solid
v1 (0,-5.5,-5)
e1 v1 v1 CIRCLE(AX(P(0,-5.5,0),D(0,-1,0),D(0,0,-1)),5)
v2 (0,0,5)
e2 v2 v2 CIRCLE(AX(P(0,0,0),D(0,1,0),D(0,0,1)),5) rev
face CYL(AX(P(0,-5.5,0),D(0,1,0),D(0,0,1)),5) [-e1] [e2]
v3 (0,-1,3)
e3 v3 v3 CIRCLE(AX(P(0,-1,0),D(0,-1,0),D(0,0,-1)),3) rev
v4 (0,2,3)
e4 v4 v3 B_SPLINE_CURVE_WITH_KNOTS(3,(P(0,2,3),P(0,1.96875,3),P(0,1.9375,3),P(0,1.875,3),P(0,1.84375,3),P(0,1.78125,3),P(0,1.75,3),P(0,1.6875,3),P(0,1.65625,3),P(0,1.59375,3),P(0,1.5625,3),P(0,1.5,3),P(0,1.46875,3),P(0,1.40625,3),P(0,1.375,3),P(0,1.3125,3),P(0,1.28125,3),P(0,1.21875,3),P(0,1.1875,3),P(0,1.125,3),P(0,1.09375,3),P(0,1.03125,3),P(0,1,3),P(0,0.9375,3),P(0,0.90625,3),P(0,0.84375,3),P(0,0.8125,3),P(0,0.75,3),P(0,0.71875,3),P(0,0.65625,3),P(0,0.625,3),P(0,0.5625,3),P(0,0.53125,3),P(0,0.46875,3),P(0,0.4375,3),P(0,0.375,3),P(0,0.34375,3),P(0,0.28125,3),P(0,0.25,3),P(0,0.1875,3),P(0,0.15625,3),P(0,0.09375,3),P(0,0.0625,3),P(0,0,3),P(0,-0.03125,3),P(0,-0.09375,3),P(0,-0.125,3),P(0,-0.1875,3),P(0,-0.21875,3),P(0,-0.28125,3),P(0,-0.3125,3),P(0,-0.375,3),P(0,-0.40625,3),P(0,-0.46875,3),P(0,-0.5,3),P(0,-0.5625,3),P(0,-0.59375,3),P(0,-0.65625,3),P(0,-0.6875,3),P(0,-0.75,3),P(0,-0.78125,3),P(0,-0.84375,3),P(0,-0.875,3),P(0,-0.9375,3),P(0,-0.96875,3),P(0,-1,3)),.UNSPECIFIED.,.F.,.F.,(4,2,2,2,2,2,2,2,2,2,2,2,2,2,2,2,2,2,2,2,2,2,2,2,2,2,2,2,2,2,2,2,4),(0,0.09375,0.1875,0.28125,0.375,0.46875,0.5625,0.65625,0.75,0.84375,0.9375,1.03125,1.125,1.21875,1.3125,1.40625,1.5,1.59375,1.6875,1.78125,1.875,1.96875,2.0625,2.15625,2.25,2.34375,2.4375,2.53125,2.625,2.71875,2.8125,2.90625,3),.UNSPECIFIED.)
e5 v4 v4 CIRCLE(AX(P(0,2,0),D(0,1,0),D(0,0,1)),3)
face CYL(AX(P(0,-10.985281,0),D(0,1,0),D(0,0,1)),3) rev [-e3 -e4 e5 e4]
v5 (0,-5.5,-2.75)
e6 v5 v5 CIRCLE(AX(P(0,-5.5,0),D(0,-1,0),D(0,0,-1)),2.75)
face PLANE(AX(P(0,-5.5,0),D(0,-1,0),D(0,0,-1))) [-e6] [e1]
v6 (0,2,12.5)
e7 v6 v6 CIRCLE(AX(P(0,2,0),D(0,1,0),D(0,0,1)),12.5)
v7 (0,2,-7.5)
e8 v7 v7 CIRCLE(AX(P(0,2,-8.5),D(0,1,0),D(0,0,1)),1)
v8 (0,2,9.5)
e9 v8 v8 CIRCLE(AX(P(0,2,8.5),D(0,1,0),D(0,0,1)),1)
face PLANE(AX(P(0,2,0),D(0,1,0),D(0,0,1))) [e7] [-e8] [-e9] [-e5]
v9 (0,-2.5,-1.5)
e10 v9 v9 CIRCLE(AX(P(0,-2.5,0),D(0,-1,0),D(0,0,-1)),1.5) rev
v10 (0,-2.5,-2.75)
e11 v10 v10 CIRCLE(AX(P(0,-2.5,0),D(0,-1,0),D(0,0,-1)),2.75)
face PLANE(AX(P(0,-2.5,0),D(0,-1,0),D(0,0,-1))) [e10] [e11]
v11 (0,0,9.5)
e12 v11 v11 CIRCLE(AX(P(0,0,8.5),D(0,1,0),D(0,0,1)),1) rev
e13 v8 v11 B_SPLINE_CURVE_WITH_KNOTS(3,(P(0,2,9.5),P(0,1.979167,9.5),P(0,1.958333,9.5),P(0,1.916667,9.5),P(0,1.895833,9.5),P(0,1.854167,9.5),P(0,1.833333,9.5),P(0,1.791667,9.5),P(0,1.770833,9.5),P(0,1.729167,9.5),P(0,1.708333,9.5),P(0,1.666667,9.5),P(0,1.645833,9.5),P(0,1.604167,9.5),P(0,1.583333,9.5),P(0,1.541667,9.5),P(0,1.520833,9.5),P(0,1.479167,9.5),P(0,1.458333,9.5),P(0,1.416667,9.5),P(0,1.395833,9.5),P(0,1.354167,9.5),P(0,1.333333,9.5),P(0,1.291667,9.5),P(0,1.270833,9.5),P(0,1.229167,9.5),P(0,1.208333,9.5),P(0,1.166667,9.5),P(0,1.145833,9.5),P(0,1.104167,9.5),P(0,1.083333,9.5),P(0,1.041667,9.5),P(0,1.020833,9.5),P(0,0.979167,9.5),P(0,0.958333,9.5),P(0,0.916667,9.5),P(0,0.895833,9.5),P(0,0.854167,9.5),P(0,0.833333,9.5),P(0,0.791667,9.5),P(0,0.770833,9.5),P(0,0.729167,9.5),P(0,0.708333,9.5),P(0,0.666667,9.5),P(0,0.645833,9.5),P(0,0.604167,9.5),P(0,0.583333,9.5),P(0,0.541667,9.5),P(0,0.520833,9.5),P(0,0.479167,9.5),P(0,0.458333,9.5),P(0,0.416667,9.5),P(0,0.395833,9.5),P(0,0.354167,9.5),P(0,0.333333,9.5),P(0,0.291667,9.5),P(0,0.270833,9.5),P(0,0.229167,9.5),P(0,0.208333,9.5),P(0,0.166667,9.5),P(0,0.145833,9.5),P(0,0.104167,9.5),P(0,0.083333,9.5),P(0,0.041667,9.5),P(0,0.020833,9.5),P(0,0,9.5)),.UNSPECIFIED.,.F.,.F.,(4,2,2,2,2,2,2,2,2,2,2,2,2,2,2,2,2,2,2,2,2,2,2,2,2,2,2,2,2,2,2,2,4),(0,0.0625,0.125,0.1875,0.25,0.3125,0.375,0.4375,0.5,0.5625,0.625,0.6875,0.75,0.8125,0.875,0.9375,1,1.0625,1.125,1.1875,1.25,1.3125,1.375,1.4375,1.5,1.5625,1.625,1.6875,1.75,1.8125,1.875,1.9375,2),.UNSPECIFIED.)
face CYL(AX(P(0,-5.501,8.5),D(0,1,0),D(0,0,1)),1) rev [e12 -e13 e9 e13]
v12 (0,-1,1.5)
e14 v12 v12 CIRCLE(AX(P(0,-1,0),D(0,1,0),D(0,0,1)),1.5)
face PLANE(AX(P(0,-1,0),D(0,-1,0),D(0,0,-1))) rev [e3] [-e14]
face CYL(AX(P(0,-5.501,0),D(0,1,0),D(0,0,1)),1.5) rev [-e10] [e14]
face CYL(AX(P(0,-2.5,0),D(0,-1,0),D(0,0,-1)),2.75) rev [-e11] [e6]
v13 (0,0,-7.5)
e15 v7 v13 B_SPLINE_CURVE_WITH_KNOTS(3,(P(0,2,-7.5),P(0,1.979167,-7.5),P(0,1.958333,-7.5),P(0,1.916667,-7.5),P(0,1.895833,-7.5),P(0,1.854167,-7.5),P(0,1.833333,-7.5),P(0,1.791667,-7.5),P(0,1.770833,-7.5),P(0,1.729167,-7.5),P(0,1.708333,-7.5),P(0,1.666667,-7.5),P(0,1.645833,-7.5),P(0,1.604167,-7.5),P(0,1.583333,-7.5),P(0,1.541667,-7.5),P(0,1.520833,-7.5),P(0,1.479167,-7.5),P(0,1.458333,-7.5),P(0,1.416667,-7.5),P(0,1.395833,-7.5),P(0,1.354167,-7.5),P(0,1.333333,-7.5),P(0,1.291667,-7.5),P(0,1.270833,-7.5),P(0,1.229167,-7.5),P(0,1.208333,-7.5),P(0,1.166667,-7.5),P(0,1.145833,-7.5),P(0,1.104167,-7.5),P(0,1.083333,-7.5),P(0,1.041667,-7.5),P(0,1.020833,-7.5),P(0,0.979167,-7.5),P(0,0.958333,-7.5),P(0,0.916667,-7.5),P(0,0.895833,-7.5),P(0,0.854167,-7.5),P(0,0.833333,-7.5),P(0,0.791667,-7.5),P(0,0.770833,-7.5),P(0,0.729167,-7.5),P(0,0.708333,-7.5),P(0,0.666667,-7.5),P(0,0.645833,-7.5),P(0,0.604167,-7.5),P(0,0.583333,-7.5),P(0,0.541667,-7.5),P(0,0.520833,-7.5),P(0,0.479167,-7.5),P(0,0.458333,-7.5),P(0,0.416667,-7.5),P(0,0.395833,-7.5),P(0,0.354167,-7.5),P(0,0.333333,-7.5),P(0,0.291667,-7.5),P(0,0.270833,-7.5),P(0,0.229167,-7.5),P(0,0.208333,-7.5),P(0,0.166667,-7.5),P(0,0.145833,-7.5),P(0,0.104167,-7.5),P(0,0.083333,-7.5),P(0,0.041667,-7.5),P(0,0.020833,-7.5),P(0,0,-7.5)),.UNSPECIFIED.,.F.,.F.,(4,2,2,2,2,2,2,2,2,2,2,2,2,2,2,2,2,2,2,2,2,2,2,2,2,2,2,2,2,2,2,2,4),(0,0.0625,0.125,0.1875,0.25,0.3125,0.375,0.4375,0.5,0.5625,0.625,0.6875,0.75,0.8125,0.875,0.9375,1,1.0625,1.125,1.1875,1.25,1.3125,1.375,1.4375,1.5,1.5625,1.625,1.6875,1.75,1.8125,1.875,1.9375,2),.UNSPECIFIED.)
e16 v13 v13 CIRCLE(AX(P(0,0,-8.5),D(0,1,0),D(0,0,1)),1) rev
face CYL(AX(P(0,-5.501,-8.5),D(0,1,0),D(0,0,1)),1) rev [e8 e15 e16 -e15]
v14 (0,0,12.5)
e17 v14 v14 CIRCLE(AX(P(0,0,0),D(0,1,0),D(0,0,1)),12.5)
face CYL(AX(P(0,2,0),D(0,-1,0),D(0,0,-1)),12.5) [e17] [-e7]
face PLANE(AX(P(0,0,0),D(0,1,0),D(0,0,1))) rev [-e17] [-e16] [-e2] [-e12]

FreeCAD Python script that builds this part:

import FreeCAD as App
import Part
import Sketcher

doc = App.newDocument("Part")
body = doc.addObject("PartDesign::Body", "Body")

# Sketch on XZ plane
sketch1 = body.newObject("Sketcher::SketchObject", "Sketch")
sketch1.AttachmentSupport = (doc.getObject("XZ_Plane"), [""])
sketch1.MapMode = "FlatFace"
sketch1.addGeometry(Part.Circle(App.Vector(0, 0, 0), App.Vector(0, 0, 1), 12.5), False)
sketch1.addConstraint([
    Sketcher.Constraint("Coincident", 0, 3, -1, 1),
    Sketcher.Constraint("Diameter", 0, 25.0),
])
pad1 = body.newObject("PartDesign::Pad", "Pad")
pad1.Profile = sketch1
pad1.Length = 2
pad1.Reversed = True

# Sketch on XZ plane
sketch2 = body.newObject("Sketcher::SketchObject", "Sketch001")
sketch2.AttachmentSupport = (doc.getObject("XZ_Plane"), [""])
sketch2.MapMode = "FlatFace"
sketch2.addGeometry(Part.Circle(App.Vector(0, 0, 0), App.Vector(0, 0, 1), 5), False)
sketch2.addConstraint([
    Sketcher.Constraint("Coincident", 0, 3, -1, 1),
    Sketcher.Constraint("Diameter", 0, 10.0),
])
pad2 = body.newObject("PartDesign::Pad", "Pad001")
pad2.Profile = sketch2
pad2.Length = 5.5

# Sketch on XZ plane
sketch3 = body.newObject("Sketcher::SketchObject", "Sketch002")
sketch3.AttachmentSupport = (doc.getObject("XZ_Plane"), [""])
sketch3.MapMode = "FlatFace"
sketch3.AttachmentOffset = App.Placement(App.Vector(0, 0, 5.5), App.Rotation())
sketch3.addGeometry(Part.Circle(App.Vector(0, 0, 0), App.Vector(0, 0, 1), 2.75), False)
sketch3.addConstraint([
    Sketcher.Constraint("Coincident", 0, 3, -1, 1),
    Sketcher.Constraint("Diameter", 0, 5.5),
])
pocket1 = body.newObject("PartDesign::Pocket", "Pocket")
pocket1.Profile = sketch3
pocket1.Length = 3

# Sketch on XZ plane
sketch4 = body.newObject("Sketcher::SketchObject", "Sketch003")
sketch4.AttachmentSupport = (doc.getObject("XZ_Plane"), [""])
sketch4.MapMode = "FlatFace"
sketch4.AttachmentOffset = App.Placement(App.Vector(0, 0, -2), App.Rotation())
sketch4.addGeometry(Part.Circle(App.Vector(0, -8.5, 0), App.Vector(0, 0, 1), 1), False)
sketch4.addConstraint([
    Sketcher.Constraint("PointOnObject", 0, 3, -2),
    Sketcher.Constraint("Diameter", 0, 2.0),
    Sketcher.Constraint("DistanceY", 0, 3, -1, 1, 8.5),
])
pocket2 = body.newObject("PartDesign::Pocket", "Pocket001")
pocket2.Profile = sketch4
pocket2.Type = "UpToFirst"
pocket2.Reversed = True

# Sketch on XZ plane
sketch5 = body.newObject("Sketcher::SketchObject", "Sketch004")
sketch5.AttachmentSupport = (doc.getObject("XZ_Plane"), [""])
sketch5.MapMode = "FlatFace"
sketch5.AttachmentOffset = App.Placement(App.Vector(0, 0, -2), App.Rotation())
sketch5.addGeometry(Part.Circle(App.Vector(0, 8.5, 0), App.Vector(0, 0, 1), 1), False)
sketch5.addConstraint([
    Sketcher.Constraint("PointOnObject", 0, 3, -2),
    Sketcher.Constraint("Diameter", 0, 2.0),
    Sketcher.Constraint("DistanceY", -1, 1, 0, 3, 8.5),
])
pocket3 = body.newObject("PartDesign::Pocket", "Pocket002")
pocket3.Profile = sketch5
pocket3.Type = "UpToFirst"
pocket3.Reversed = True

# Sketch on XZ plane
sketch6 = body.newObject("Sketcher::SketchObject", "Sketch005")
sketch6.AttachmentSupport = (doc.getObject("XZ_Plane"), [""])
sketch6.MapMode = "FlatFace"
sketch6.AttachmentOffset = App.Placement(App.Vector(0, 0, -2), App.Rotation())
sketch6.addGeometry(Part.Circle(App.Vector(0, 0, 0), App.Vector(0, 0, 1), 3), False)
sketch6.addConstraint([
    Sketcher.Constraint("Coincident", 0, 3, -1, 1),
    Sketcher.Constraint("Diameter", 0, 6.0),
])
pocket4 = body.newObject("PartDesign::Pocket", "Pocket003")
pocket4.Profile = sketch6
pocket4.Length = 3
pocket4.Reversed = True

# Sketch on XZ plane
sketch7 = body.newObject("Sketcher::SketchObject", "Sketch006")
sketch7.AttachmentSupport = (doc.getObject("XZ_Plane"), [""])
sketch7.MapMode = "FlatFace"
sketch7.AttachmentOffset = App.Placement(App.Vector(0, 0, 1), App.Rotation())
sketch7.addGeometry(Part.Circle(App.Vector(0, 0, 0), App.Vector(0, 0, 1), 1.5), False)
sketch7.addConstraint([
    Sketcher.Constraint("Coincident", 0, 3, -1, 1),
    Sketcher.Constraint("Diameter", 0, 3.0),
])
pocket5 = body.newObject("PartDesign::Pocket", "Pocket004")
pocket5.Profile = sketch7
pocket5.Type = "UpToFirst"
pocket5.Reversed = True

doc.recompute()
